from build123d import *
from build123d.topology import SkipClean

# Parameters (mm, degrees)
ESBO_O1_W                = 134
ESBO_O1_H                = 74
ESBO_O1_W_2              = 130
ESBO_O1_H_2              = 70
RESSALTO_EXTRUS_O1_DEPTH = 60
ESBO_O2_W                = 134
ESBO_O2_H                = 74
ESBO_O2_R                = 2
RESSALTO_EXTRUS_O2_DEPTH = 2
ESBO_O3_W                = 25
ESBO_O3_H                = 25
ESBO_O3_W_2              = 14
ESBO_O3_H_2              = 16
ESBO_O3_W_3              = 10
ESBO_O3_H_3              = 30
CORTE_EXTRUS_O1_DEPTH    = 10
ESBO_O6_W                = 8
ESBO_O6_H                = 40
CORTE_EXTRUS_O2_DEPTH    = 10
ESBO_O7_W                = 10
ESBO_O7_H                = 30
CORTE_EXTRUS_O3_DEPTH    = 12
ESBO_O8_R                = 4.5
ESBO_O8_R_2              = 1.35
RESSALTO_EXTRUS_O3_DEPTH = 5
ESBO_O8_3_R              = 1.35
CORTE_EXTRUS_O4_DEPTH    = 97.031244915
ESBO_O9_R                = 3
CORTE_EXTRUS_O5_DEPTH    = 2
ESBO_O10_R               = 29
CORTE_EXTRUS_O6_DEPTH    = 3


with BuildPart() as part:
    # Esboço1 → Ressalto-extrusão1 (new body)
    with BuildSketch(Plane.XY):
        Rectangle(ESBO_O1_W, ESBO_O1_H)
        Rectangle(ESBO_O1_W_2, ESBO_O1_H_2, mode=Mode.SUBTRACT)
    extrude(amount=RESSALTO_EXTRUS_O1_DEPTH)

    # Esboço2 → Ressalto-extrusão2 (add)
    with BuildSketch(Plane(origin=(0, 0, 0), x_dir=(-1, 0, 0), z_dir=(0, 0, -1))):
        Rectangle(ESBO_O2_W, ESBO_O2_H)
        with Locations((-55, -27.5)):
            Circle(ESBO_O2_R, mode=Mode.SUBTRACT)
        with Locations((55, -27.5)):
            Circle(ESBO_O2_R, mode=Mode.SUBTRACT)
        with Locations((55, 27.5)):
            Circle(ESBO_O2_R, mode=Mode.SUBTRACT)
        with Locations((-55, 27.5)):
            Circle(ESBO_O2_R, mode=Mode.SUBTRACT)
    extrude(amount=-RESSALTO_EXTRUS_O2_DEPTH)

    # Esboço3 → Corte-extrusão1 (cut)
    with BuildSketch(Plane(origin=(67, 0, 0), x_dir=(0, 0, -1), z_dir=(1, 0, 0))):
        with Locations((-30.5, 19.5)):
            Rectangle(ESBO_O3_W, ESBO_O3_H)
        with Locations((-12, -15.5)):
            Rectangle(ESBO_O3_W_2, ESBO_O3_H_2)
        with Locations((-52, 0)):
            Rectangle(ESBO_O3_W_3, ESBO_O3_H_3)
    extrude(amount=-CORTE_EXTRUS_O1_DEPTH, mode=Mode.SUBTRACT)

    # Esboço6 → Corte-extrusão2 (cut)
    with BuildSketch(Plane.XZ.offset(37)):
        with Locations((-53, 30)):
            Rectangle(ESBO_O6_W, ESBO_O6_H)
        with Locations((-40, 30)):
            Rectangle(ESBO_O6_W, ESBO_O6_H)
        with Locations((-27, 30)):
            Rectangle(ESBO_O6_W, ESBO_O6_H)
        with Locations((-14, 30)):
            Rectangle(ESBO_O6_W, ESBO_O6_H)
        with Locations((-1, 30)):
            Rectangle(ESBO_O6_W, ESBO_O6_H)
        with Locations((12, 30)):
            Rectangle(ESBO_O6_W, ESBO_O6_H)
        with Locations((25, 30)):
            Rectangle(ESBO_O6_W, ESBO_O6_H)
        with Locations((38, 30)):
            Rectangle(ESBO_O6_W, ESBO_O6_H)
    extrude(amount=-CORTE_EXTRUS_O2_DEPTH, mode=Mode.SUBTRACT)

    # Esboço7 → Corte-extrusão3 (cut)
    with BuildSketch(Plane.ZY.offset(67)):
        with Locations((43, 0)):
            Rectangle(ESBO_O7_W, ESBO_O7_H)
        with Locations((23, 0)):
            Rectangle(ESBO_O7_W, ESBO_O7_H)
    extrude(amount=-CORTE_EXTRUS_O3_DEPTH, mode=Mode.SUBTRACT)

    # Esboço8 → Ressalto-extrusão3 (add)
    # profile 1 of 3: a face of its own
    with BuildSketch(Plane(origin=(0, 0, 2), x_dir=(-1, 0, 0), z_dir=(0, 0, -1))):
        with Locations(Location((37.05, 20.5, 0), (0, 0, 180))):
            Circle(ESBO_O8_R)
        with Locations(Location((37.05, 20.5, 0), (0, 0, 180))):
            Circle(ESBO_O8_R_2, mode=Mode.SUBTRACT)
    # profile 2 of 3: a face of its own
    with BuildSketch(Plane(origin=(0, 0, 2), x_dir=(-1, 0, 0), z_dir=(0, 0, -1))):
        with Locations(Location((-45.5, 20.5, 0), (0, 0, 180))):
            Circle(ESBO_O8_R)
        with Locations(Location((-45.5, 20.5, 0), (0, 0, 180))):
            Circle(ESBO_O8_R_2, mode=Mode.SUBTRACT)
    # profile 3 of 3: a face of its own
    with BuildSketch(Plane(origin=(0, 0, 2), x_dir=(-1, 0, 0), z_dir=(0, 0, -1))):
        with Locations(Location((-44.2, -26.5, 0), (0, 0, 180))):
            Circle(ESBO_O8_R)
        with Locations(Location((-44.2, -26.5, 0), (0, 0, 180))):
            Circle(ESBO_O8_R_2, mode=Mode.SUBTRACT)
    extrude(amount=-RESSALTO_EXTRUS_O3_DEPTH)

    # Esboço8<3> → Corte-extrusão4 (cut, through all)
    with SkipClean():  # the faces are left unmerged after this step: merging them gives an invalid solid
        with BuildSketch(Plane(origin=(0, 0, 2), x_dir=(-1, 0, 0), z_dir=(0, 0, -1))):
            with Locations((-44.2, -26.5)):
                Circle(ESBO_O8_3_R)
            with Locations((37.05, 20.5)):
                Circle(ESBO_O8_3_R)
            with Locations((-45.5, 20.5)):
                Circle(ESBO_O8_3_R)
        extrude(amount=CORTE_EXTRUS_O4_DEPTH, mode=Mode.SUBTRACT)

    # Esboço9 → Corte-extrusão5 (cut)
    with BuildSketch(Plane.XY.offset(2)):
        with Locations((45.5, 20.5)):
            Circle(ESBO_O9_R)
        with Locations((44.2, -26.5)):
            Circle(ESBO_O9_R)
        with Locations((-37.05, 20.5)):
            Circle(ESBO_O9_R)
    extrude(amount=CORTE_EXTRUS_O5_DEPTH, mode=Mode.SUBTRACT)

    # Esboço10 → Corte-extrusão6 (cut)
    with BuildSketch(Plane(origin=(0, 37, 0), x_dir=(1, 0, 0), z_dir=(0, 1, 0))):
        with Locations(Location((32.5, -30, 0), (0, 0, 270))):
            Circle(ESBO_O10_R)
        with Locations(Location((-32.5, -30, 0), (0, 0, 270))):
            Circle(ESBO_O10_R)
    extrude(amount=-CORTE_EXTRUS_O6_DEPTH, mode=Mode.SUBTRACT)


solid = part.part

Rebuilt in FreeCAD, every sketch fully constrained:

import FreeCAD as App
import Part
import Sketcher
from FreeCAD import Vector


def add_polygon(sketch, points):
    """Adds a closed chain of lines whose ends are joined by coincident constraints."""
    first, n = sketch.GeometryCount, len(points)
    for a, b in zip(points, points[1:] + points[:1]):
        sketch.addGeometry(Part.LineSegment(App.Vector(*a, 0), App.Vector(*b, 0)), False)
    for i in range(n):
        sketch.addConstraint(Sketcher.Constraint("Coincident", first + i, 2, first + (i + 1) % n, 1))

doc = App.newDocument("Part")
body = doc.addObject("PartDesign::Body", "Body")

# Sketch on XY plane
sketch1 = body.newObject("Sketcher::SketchObject", "Sketch")
sketch1.AttachmentSupport = (doc.getObject("XY_Plane"), [""])
sketch1.MapMode = "FlatFace"
add_polygon(sketch1, [(-67, 37), (-67, -37), (67, -37), (67, 37)])  # lines 0-3
add_polygon(sketch1, [(65, -35), (-65, -35), (-65, 35), (65, 35)])  # lines 4-7
sketch1.addConstraint(Sketcher.Constraint("Vertical", 0))
sketch1.addConstraint(Sketcher.Constraint("Horizontal", 1))
sketch1.addConstraint(Sketcher.Constraint("Vertical", 2))
sketch1.addConstraint(Sketcher.Constraint("Horizontal", 3))
sketch1.addConstraint(Sketcher.Constraint("Horizontal", 4))
sketch1.addConstraint(Sketcher.Constraint("Vertical", 5))
sketch1.addConstraint(Sketcher.Constraint("Horizontal", 6))
sketch1.addConstraint(Sketcher.Constraint("Vertical", 7))
sketch1.addConstraint(Sketcher.Constraint("Symmetric", 0, 2, 2, 2, -1, 1))
sketch1.addConstraint(Sketcher.Constraint("Symmetric", 4, 2, 6, 2, -1, 1))
sketch1.addConstraint(Sketcher.Constraint("DistanceX", 1, 1, 1, 2, 134.0))
sketch1.addConstraint(Sketcher.Constraint("DistanceX", 4, 2, 4, 1, 130.0))
sketch1.addConstraint(Sketcher.Constraint("DistanceY", 0, 2, 0, 1, 74.0))
sketch1.addConstraint(Sketcher.Constraint("DistanceY", 5, 1, 5, 2, 70.0))
pad1 = body.newObject("PartDesign::Pad", "Pad")
pad1.Profile = sketch1
pad1.Length = 60

# Sketch on XY plane
sketch2 = body.newObject("Sketcher::SketchObject", "Sketch001")
sketch2.AttachmentSupport = (doc.getObject("XY_Plane"), [""])
sketch2.MapMode = "FlatFace"
add_polygon(sketch2, [(67, 37), (67, -37), (-67, -37), (-67, 37)])  # lines 0-3
sketch2.addGeometry(Part.Circle(Vector(55, -27.5, 0), Vector(0, 0, 1), 2), False)  # 4
sketch2.addGeometry(Part.Circle(Vector(-55, -27.5, 0), Vector(0, 0, 1), 2), False)  # 5
sketch2.addGeometry(Part.Circle(Vector(55, 27.5, 0), Vector(0, 0, 1), 2), False)  # 6
sketch2.addGeometry(Part.Circle(Vector(-55, 27.5, 0), Vector(0, 0, 1), 2), False)  # 7
sketch2.addConstraint(Sketcher.Constraint("Vertical", 0))
sketch2.addConstraint(Sketcher.Constraint("Horizontal", 1))
sketch2.addConstraint(Sketcher.Constraint("Vertical", 2))
sketch2.addConstraint(Sketcher.Constraint("Horizontal", 3))
sketch2.addConstraint(Sketcher.Constraint("Equal", 4, 5))
sketch2.addConstraint(Sketcher.Constraint("Equal", 5, 6))
sketch2.addConstraint(Sketcher.Constraint("Equal", 6, 7))
sketch2.addConstraint(Sketcher.Constraint("Symmetric", 5, 3, 6, 3, -1, 1))
sketch2.addConstraint(Sketcher.Constraint("Symmetric", 4, 3, 7, 3, -1, 1))
sketch2.addConstraint(Sketcher.Constraint("Symmetric", 0, 2, 2, 2, -1, 1))
sketch2.addConstraint(Sketcher.Constraint("Symmetric", 4, 3, 5, 3, -2))
sketch2.addConstraint(Sketcher.Constraint("Diameter", 4, 4.0))
sketch2.addConstraint(Sketcher.Constraint("DistanceX", 1, 2, 1, 1, 134.0))
sketch2.addConstraint(Sketcher.Constraint("DistanceY", 0, 2, 0, 1, 74.0))
sketch2.addConstraint(Sketcher.Constraint("DistanceX", -1, 1, 4, 3, 55.0))
sketch2.addConstraint(Sketcher.Constraint("DistanceY", 4, 3, 6, 3, 55.0))
pad2 = body.newObject("PartDesign::Pad", "Pad001")
pad2.Profile = sketch2
pad2.Length = 2

# Sketch on YZ plane
sketch3 = body.newObject("Sketcher::SketchObject", "Sketch002")
sketch3.AttachmentSupport = (doc.getObject("YZ_Plane"), [""])
sketch3.MapMode = "FlatFace"
sketch3.AttachmentOffset = App.Placement(Vector(0, 0, 67), App.Rotation())
add_polygon(sketch3, [(32, 43), (7, 43), (7, 18), (32, 18)])  # lines 0-3
add_polygon(sketch3, [(-7.5, 19), (-23.5, 19), (-23.5, 5), (-7.5, 5)])  # lines 4-7
add_polygon(sketch3, [(15, 57), (-15, 57), (-15, 47), (15, 47)])  # lines 8-11
sketch3.addConstraint(Sketcher.Constraint("Horizontal", 0))
sketch3.addConstraint(Sketcher.Constraint("Vertical", 1))
sketch3.addConstraint(Sketcher.Constraint("Horizontal", 2))
sketch3.addConstraint(Sketcher.Constraint("Vertical", 3))
sketch3.addConstraint(Sketcher.Constraint("Horizontal", 4))
sketch3.addConstraint(Sketcher.Constraint("Vertical", 5))
sketch3.addConstraint(Sketcher.Constraint("Horizontal", 6))
sketch3.addConstraint(Sketcher.Constraint("Vertical", 7))
sketch3.addConstraint(Sketcher.Constraint("Horizontal", 8))
sketch3.addConstraint(Sketcher.Constraint("Vertical", 9))
sketch3.addConstraint(Sketcher.Constraint("Horizontal", 10))
sketch3.addConstraint(Sketcher.Constraint("Vertical", 11))
sketch3.addConstraint(Sketcher.Constraint("Equal", 2, 1))
sketch3.addConstraint(Sketcher.Constraint("DistanceX", 0, 2, 0, 1, 25.0))
sketch3.addConstraint(Sketcher.Constraint("DistanceX", 4, 2, 4, 1, 16.0))
sketch3.addConstraint(Sketcher.Constraint("DistanceX", 8, 2, 8, 1, 30.0))
sketch3.addConstraint(Sketcher.Constraint("DistanceY", 5, 2, 5, 1, 14.0))
sketch3.addConstraint(Sketcher.Constraint("DistanceY", 9, 2, 9, 1, 10.0))
sketch3.addConstraint(Sketcher.Constraint("DistanceX", -1, 1, 0, 2, 7.0))
sketch3.addConstraint(Sketcher.Constraint("DistanceY", -1, 1, 0, 2, 43.0))
sketch3.addConstraint(Sketcher.Constraint("DistanceY", -1, 1, 4, 2, 19.0))
sketch3.addConstraint(Sketcher.Constraint("DistanceX", 8, 2, -1, 1, 15.0))
sketch3.addConstraint(Sketcher.Constraint("DistanceY", -1, 1, 8, 2, 57.0))
sketch3.addConstraint(Sketcher.Constraint("DistanceX", 4, 2, -1, 1, 23.5))
pocket1 = body.newObject("PartDesign::Pocket", "Pocket")
pocket1.Profile = sketch3
pocket1.Length = 10

# Sketch on XZ plane
sketch4 = body.newObject("Sketcher::SketchObject", "Sketch003")
sketch4.AttachmentSupport = (doc.getObject("XZ_Plane"), [""])
sketch4.MapMode = "FlatFace"
sketch4.AttachmentOffset = App.Placement(Vector(0, 0, 37), App.Rotation())
add_polygon(sketch4, [(-57, 50), (-57, 10), (-49, 10), (-49, 50)])  # lines 0-3
add_polygon(sketch4, [(-44, 50), (-44, 10), (-36, 10), (-36, 50)])  # lines 4-7
add_polygon(sketch4, [(-31, 50), (-31, 10), (-23, 10), (-23, 50)])  # lines 8-11
add_polygon(sketch4, [(-18, 50), (-18, 10), (-10, 10), (-10, 50)])  # lines 12-15
add_polygon(sketch4, [(-5, 50), (-5, 10), (3, 10), (3, 50)])  # lines 16-19
add_polygon(sketch4, [(8, 50), (8, 10), (16, 10), (16, 50)])  # lines 20-23
add_polygon(sketch4, [(21, 50), (21, 10), (29, 10), (29, 50)])  # lines 24-27
add_polygon(sketch4, [(34, 50), (34, 10), (42, 10), (42, 50)])  # lines 28-31
sketch4.addConstraint(Sketcher.Constraint("Vertical", 0))
sketch4.addConstraint(Sketcher.Constraint("Horizontal", 1))
sketch4.addConstraint(Sketcher.Constraint("Vertical", 2))
sketch4.addConstraint(Sketcher.Constraint("Horizontal", 3))
sketch4.addConstraint(Sketcher.Constraint("Vertical", 4))
sketch4.addConstraint(Sketcher.Constraint("Horizontal", 5))
sketch4.addConstraint(Sketcher.Constraint("Vertical", 6))
sketch4.addConstraint(Sketcher.Constraint("Horizontal", 7))
sketch4.addConstraint(Sketcher.Constraint("Vertical", 8))
sketch4.addConstraint(Sketcher.Constraint("Horizontal", 9))
sketch4.addConstraint(Sketcher.Constraint("Vertical", 10))
sketch4.addConstraint(Sketcher.Constraint("Horizontal", 11))
sketch4.addConstraint(Sketcher.Constraint("Vertical", 12))
sketch4.addConstraint(Sketcher.Constraint("Horizontal", 13))
sketch4.addConstraint(Sketcher.Constraint("Vertical", 14))
sketch4.addConstraint(Sketcher.Constraint("Horizontal", 15))
sketch4.addConstraint(Sketcher.Constraint("Vertical", 16))
sketch4.addConstraint(Sketcher.Constraint("Horizontal", 17))
sketch4.addConstraint(Sketcher.Constraint("Vertical", 18))
sketch4.addConstraint(Sketcher.Constraint("Horizontal", 19))
sketch4.addConstraint(Sketcher.Constraint("Vertical", 20))
sketch4.addConstraint(Sketcher.Constraint("Horizontal", 21))
sketch4.addConstraint(Sketcher.Constraint("Vertical", 22))
sketch4.addConstraint(Sketcher.Constraint("Horizontal", 23))
sketch4.addConstraint(Sketcher.Constraint("Vertical", 24))
sketch4.addConstraint(Sketcher.Constraint("Horizontal", 25))
sketch4.addConstraint(Sketcher.Constraint("Vertical", 26))
sketch4.addConstraint(Sketcher.Constraint("Horizontal", 27))
sketch4.addConstraint(Sketcher.Constraint("Vertical", 28))
sketch4.addConstraint(Sketcher.Constraint("Horizontal", 29))
sketch4.addConstraint(Sketcher.Constraint("Vertical", 30))
sketch4.addConstraint(Sketcher.Constraint("Horizontal", 31))
sketch4.addConstraint(Sketcher.Constraint("Horizontal", 1, 2, 4, 2))
sketch4.addConstraint(Sketcher.Constraint("Horizontal", 3, 2, 6, 2))
sketch4.addConstraint(Sketcher.Constraint("Horizontal", 5, 2, 8, 2))
sketch4.addConstraint(Sketcher.Constraint("Horizontal", 7, 2, 10, 2))
sketch4.addConstraint(Sketcher.Constraint("Horizontal", 9, 2, 12, 2))
sketch4.addConstraint(Sketcher.Constraint("Horizontal", 11, 2, 14, 2))
sketch4.addConstraint(Sketcher.Constraint("Horizontal", 13, 2, 16, 2))
sketch4.addConstraint(Sketcher.Constraint("Horizontal", 15, 2, 18, 2))
sketch4.addConstraint(Sketcher.Constraint("Horizontal", 17, 2, 20, 2))
sketch4.addConstraint(Sketcher.Constraint("Horizontal", 19, 2, 22, 2))
sketch4.addConstraint(Sketcher.Constraint("Horizontal", 21, 2, 24, 2))
sketch4.addConstraint(Sketcher.Constraint("Horizontal", 23, 2, 26, 2))
sketch4.addConstraint(Sketcher.Constraint("Horizontal", 25, 2, 28, 2))
sketch4.addConstraint(Sketcher.Constraint("Horizontal", 27, 2, 30, 2))
sketch4.addConstraint(Sketcher.Constraint("Equal", 3, 5))
sketch4.addConstraint(Sketcher.Constraint("Equal", 7, 9))
sketch4.addConstraint(Sketcher.Constraint("Equal", 11, 13))
sketch4.addConstraint(Sketcher.Constraint("Equal", 15, 17))
sketch4.addConstraint(Sketcher.Constraint("Equal", 19, 21))
sketch4.addConstraint(Sketcher.Constraint("Equal", 23, 25))
sketch4.addConstraint(Sketcher.Constraint("Equal", 27, 29))
sketch4.addConstraint(Sketcher.Constraint("DistanceX", 1, 1, 1, 2, 8.0))
sketch4.addConstraint(Sketcher.Constraint("DistanceY", 0, 2, 0, 1, 40.0))
sketch4.addConstraint(Sketcher.Constraint("DistanceX", 0, 2, -1, 1, 57.0))
sketch4.addConstraint(Sketcher.Constraint("DistanceY", -1, 1, 0, 2, 10.0))
sketch4.addConstraint(Sketcher.Constraint("DistanceX", 4, 2, -1, 1, 44.0))
sketch4.addConstraint(Sketcher.Constraint("DistanceX", 8, 2, -1, 1, 31.0))
sketch4.addConstraint(Sketcher.Constraint("DistanceX", 12, 2, -1, 1, 18.0))
sketch4.addConstraint(Sketcher.Constraint("DistanceX", 16, 2, -1, 1, 5.0))
sketch4.addConstraint(Sketcher.Constraint("DistanceX", -1, 1, 20, 2, 8.0))
sketch4.addConstraint(Sketcher.Constraint("DistanceX", -1, 1, 24, 2, 21.0))
sketch4.addConstraint(Sketcher.Constraint("DistanceX", -1, 1, 28, 2, 34.0))
pocket2 = body.newObject("PartDesign::Pocket", "Pocket001")
pocket2.Profile = sketch4
pocket2.Length = 10

# Sketch on YZ plane
sketch5 = body.newObject("Sketcher::SketchObject", "Sketch004")
sketch5.AttachmentSupport = (doc.getObject("YZ_Plane"), [""])
sketch5.MapMode = "FlatFace"
sketch5.AttachmentOffset = App.Placement(Vector(0, 0, -67), App.Rotation())
add_polygon(sketch5, [(15, 38), (-15, 38), (-15, 48), (15, 48)])  # lines 0-3
add_polygon(sketch5, [(15, 18), (-15, 18), (-15, 28), (15, 28)])  # lines 4-7
sketch5.addConstraint(Sketcher.Constraint("Horizontal", 0))
sketch5.addConstraint(Sketcher.Constraint("Vertical", 1))
sketch5.addConstraint(Sketcher.Constraint("Horizontal", 2))
sketch5.addConstraint(Sketcher.Constraint("Vertical", 3))
sketch5.addConstraint(Sketcher.Constraint("Horizontal", 4))
sketch5.addConstraint(Sketcher.Constraint("Vertical", 5))
sketch5.addConstraint(Sketcher.Constraint("Horizontal", 6))
sketch5.addConstraint(Sketcher.Constraint("Vertical", 7))
sketch5.addConstraint(Sketcher.Constraint("Vertical", 1, 2, 4, 2))
sketch5.addConstraint(Sketcher.Constraint("Vertical", 3, 2, 6, 2))
sketch5.addConstraint(Sketcher.Constraint("Equal", 3, 5))
sketch5.addConstraint(Sketcher.Constraint("DistanceX", 0, 2, 0, 1, 30.0))
sketch5.addConstraint(Sketcher.Constraint("DistanceY", 1, 1, 1, 2, 10.0))
sketch5.addConstraint(Sketcher.Constraint("DistanceX", 0, 2, -1, 1, 15.0))
sketch5.addConstraint(Sketcher.Constraint("DistanceY", -1, 1, 0, 2, 38.0))
sketch5.addConstraint(Sketcher.Constraint("DistanceY", -1, 1, 4, 2, 18.0))
pocket3 = body.newObject("PartDesign::Pocket", "Pocket002")
pocket3.Profile = sketch5
pocket3.Length = 12
pocket3.Reversed = True

# Sketch on XY plane
sketch6 = body.newObject("Sketcher::SketchObject", "Sketch005")
sketch6.AttachmentSupport = (doc.getObject("XY_Plane"), [""])
sketch6.MapMode = "FlatFace"
sketch6.AttachmentOffset = App.Placement(Vector(0, 0, 2), App.Rotation())
sketch6.addGeometry(Part.Circle(Vector(-37.05, 20.5, 0), Vector(0, 0, 1), 4.5), False)
sketch6.addGeometry(Part.Circle(Vector(-37.05, 20.5, 0), Vector(0, 0, 1), 1.35), False)
sketch6.addGeometry(Part.Circle(Vector(45.5, 20.5, 0), Vector(0, 0, 1), 4.5), False)
sketch6.addGeometry(Part.Circle(Vector(45.5, 20.5, 0), Vector(0, 0, 1), 1.35), False)
sketch6.addGeometry(Part.Circle(Vector(44.2, -26.5, 0), Vector(0, 0, 1), 4.5), False)
sketch6.addGeometry(Part.Circle(Vector(44.2, -26.5, 0), Vector(0, 0, 1), 1.35), False)
sketch6.addConstraint(Sketcher.Constraint("Coincident", 1, 3, 0, 3))
sketch6.addConstraint(Sketcher.Constraint("Coincident", 3, 3, 2, 3))
sketch6.addConstraint(Sketcher.Constraint("Coincident", 5, 3, 4, 3))
sketch6.addConstraint(Sketcher.Constraint("Equal", 0, 2))
sketch6.addConstraint(Sketcher.Constraint("Equal", 1, 3))
sketch6.addConstraint(Sketcher.Constraint("Equal", 2, 4))
sketch6.addConstraint(Sketcher.Constraint("Equal", 3, 5))
sketch6.addConstraint(Sketcher.Constraint("Horizontal", 1, 3, 2, 3))
sketch6.addConstraint(Sketcher.Constraint("Diameter", 0, 9.0))
sketch6.addConstraint(Sketcher.Constraint("Diameter", 1, 2.7))
sketch6.addConstraint(Sketcher.Constraint("DistanceY", 4, 3, 2, 3, 47.0))
sketch6.addConstraint(Sketcher.Constraint("DistanceY", -1, 1, 0, 3, 20.5))
sketch6.addConstraint(Sketcher.Constraint("DistanceX", -1, 1, 2, 3, 45.5))
sketch6.addConstraint(Sketcher.Constraint("DistanceX", -1, 1, 4, 3, 44.2))
sketch6.addConstraint(Sketcher.Constraint("DistanceX", 0, 3, -1, 1, 37.05))
pad3 = body.newObject("PartDesign::Pad", "Pad002")
pad3.Profile = sketch6
pad3.Length = 5

# Sketch on XY plane
sketch7 = body.newObject("Sketcher::SketchObject", "Sketch006")
sketch7.AttachmentSupport = (doc.getObject("XY_Plane"), [""])
sketch7.MapMode = "FlatFace"
sketch7.AttachmentOffset = App.Placement(Vector(0, 0, 2), App.Rotation())
sketch7.addGeometry(Part.Circle(Vector(44.2, -26.5, 0), Vector(0, 0, 1), 1.35), False)
sketch7.addGeometry(Part.Circle(Vector(-37.05, 20.5, 0), Vector(0, 0, 1), 1.35), False)
sketch7.addGeometry(Part.Circle(Vector(45.5, 20.5, 0), Vector(0, 0, 1), 1.35), False)
sketch7.addConstraint(Sketcher.Constraint("Equal", 0, 1))
sketch7.addConstraint(Sketcher.Constraint("Equal", 1, 2))
sketch7.addConstraint(Sketcher.Constraint("Horizontal", 1, 3, 2, 3))
sketch7.addConstraint(Sketcher.Constraint("Diameter", 0, 2.7))
sketch7.addConstraint(Sketcher.Constraint("DistanceY", 0, 3, 1, 3, 47.0))
sketch7.addConstraint(Sketcher.Constraint("DistanceX", -1, 1, 0, 3, 44.2))
sketch7.addConstraint(Sketcher.Constraint("DistanceY", 0, 3, -1, 1, 26.5))
sketch7.addConstraint(Sketcher.Constraint("DistanceX", -1, 1, 2, 3, 45.5))
sketch7.addConstraint(Sketcher.Constraint("DistanceX", 1, 3, -1, 1, 37.05))
pocket4 = body.newObject("PartDesign::Pocket", "Pocket003")
pocket4.Profile = sketch7
pocket4.Type = "ThroughAll"

# Sketch on XY plane
sketch8 = body.newObject("Sketcher::SketchObject", "Sketch007")
sketch8.AttachmentSupport = (doc.getObject("XY_Plane"), [""])
sketch8.MapMode = "FlatFace"
sketch8.AttachmentOffset = App.Placement(Vector(0, 0, 2), App.Rotation())
sketch8.addGeometry(Part.Circle(Vector(45.5, 20.5, 0), Vector(0, 0, 1), 3), False)
sketch8.addGeometry(Part.Circle(Vector(44.2, -26.5, 0), Vector(0, 0, 1), 3), False)
sketch8.addGeometry(Part.Circle(Vector(-37.05, 20.5, 0), Vector(0, 0, 1), 3), False)
sketch8.addConstraint(Sketcher.Constraint("Equal", 0, 1))
sketch8.addConstraint(Sketcher.Constraint("Equal", 1, 2))
sketch8.addConstraint(Sketcher.Constraint("Horizontal", 0, 3, 2, 3))
sketch8.addConstraint(Sketcher.Constraint("Diameter", 0, 6.0))
sketch8.addConstraint(Sketcher.Constraint("DistanceY", 1, 3, 0, 3, 47.0))
sketch8.addConstraint(Sketcher.Constraint("DistanceX", -1, 1, 0, 3, 45.5))
sketch8.addConstraint(Sketcher.Constraint("DistanceY", -1, 1, 0, 3, 20.5))
sketch8.addConstraint(Sketcher.Constraint("DistanceX", -1, 1, 1, 3, 44.2))
sketch8.addConstraint(Sketcher.Constraint("DistanceX", 2, 3, -1, 1, 37.05))
pocket5 = body.newObject("PartDesign::Pocket", "Pocket004")
pocket5.Profile = sketch8
pocket5.Length = 2
pocket5.Reversed = True

# Sketch on XZ plane
sketch9 = body.newObject("Sketcher::SketchObject", "Sketch008")
sketch9.AttachmentSupport = (doc.getObject("XZ_Plane"), [""])
sketch9.MapMode = "FlatFace"
sketch9.AttachmentOffset = App.Placement(Vector(0, 0, -37), App.Rotation())
sketch9.addGeometry(Part.Circle(Vector(32.5, 30, 0), Vector(0, 0, 1), 29), False)
sketch9.addGeometry(Part.Circle(Vector(-32.5, 30, 0), Vector(0, 0, 1), 29), False)
sketch9.addConstraint(Sketcher.Constraint("Equal", 0, 1))
sketch9.addConstraint(Sketcher.Constraint("Symmetric", 0, 3, 1, 3, -2))
sketch9.addConstraint(Sketcher.Constraint("Diameter", 0, 58.0))
sketch9.addConstraint(Sketcher.Constraint("DistanceY", -1, 1, 0, 3, 30.0))
sketch9.addConstraint(Sketcher.Constraint("DistanceX", 1, 3, 0, 3, 65.0))
pocket6 = body.newObject("PartDesign::Pocket", "Pocket005")
pocket6.Profile = sketch9
pocket6.Length = 3
pocket6.Reversed = True

doc.recompute()
